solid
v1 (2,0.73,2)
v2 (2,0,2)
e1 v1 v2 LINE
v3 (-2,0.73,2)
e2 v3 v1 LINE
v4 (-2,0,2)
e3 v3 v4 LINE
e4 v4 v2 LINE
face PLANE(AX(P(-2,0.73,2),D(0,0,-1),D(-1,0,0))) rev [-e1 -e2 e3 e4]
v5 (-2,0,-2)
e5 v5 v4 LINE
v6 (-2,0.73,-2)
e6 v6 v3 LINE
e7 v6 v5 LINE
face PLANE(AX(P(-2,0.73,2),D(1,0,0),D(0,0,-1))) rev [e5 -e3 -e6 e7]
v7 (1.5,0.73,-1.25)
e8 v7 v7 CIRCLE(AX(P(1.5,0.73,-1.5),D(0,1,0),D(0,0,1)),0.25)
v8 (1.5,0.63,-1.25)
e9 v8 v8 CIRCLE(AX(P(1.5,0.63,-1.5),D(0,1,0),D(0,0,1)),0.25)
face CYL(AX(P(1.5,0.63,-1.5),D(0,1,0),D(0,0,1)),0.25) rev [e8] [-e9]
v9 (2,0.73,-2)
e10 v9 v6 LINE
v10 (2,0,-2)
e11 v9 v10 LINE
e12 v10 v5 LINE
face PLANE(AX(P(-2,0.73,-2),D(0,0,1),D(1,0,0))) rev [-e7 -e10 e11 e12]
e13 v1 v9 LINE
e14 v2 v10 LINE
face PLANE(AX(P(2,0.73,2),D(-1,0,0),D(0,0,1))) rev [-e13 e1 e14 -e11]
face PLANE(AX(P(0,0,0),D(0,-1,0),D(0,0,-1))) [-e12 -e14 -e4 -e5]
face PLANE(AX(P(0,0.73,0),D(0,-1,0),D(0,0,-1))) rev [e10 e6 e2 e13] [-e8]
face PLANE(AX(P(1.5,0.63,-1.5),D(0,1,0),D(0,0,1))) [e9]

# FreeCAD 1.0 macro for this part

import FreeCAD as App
import Part
import Sketcher
from FreeCAD import Vector
Q = App.Units.Quantity

doc = App.newDocument("Part")
body = doc.addObject("PartDesign::Body", "Body")

# Sketch on XZ plane
sketch1 = body.newObject("Sketcher::SketchObject", "Sketch")
sketch1.AttachmentSupport = (doc.getObject("XZ_Plane"), [""])
sketch1.MapMode = "FlatFace"
sketch1.addGeometry(Part.LineSegment(Vector(-2, -2, 0), Vector(-2, 2, 0)), False)
sketch1.addGeometry(Part.LineSegment(Vector(-2, 2, 0), Vector(2, 2, 0)), False)
sketch1.addGeometry(Part.LineSegment(Vector(2, 2, 0), Vector(2, -2, 0)), False)
sketch1.addGeometry(Part.LineSegment(Vector(2, -2, 0), Vector(-2, -2, 0)), False)
sketch1.addConstraint(Sketcher.Constraint("Coincident", 0, 2, 1, 1))
sketch1.addConstraint(Sketcher.Constraint("Coincident", 1, 2, 2, 1))
sketch1.addConstraint(Sketcher.Constraint("Coincident", 2, 2, 3, 1))
sketch1.addConstraint(Sketcher.Constraint("Coincident", 3, 2, 0, 1))
sketch1.addConstraint(Sketcher.Constraint("Vertical", 0))
sketch1.addConstraint(Sketcher.Constraint("Horizontal", 1))
sketch1.addConstraint(Sketcher.Constraint("Vertical", 2))
sketch1.addConstraint(Sketcher.Constraint("Horizontal", 3))
sketch1.addConstraint(Sketcher.Constraint("Symmetric", 0, 2, 2, 2, -1, 1))
sketch1.addConstraint(Sketcher.Constraint("Equal", 3, 0))
sketch1.addConstraint(Sketcher.Constraint("DistanceX", 1, 1, 1, 2, Q("4 mm")))
pad1 = body.newObject("PartDesign::Pad", "Pad")
pad1.Profile = sketch1
pad1.Length = 0.73
pad1.Reversed = True

# Sketch on XZ plane
sketch2 = body.newObject("Sketcher::SketchObject", "Sketch001")
sketch2.AttachmentSupport = (doc.getObject("XZ_Plane"), [""])
sketch2.MapMode = "FlatFace"
sketch2.AttachmentOffset = App.Placement(Vector(0, 0, -0.73), App.Rotation())
sketch2.addGeometry(Part.Circle(Vector(1.5, -1.5, 0), Vector(0, 0, 1), 0.25), False)
sketch2.addConstraint(Sketcher.Constraint("Diameter", 0, Q("0.5 mm")))
sketch2.addConstraint(Sketcher.Constraint("DistanceX", -1, 1, 0, 3, Q("1.5 mm")))
sketch2.addConstraint(Sketcher.Constraint("DistanceY", 0, 3, -1, 1, Q("1.5 mm")))
pocket1 = body.newObject("PartDesign::Pocket", "Pocket")
pocket1.Profile = sketch2
pocket1.Length = 0.1
pocket1.Reversed = True

doc.recompute()
